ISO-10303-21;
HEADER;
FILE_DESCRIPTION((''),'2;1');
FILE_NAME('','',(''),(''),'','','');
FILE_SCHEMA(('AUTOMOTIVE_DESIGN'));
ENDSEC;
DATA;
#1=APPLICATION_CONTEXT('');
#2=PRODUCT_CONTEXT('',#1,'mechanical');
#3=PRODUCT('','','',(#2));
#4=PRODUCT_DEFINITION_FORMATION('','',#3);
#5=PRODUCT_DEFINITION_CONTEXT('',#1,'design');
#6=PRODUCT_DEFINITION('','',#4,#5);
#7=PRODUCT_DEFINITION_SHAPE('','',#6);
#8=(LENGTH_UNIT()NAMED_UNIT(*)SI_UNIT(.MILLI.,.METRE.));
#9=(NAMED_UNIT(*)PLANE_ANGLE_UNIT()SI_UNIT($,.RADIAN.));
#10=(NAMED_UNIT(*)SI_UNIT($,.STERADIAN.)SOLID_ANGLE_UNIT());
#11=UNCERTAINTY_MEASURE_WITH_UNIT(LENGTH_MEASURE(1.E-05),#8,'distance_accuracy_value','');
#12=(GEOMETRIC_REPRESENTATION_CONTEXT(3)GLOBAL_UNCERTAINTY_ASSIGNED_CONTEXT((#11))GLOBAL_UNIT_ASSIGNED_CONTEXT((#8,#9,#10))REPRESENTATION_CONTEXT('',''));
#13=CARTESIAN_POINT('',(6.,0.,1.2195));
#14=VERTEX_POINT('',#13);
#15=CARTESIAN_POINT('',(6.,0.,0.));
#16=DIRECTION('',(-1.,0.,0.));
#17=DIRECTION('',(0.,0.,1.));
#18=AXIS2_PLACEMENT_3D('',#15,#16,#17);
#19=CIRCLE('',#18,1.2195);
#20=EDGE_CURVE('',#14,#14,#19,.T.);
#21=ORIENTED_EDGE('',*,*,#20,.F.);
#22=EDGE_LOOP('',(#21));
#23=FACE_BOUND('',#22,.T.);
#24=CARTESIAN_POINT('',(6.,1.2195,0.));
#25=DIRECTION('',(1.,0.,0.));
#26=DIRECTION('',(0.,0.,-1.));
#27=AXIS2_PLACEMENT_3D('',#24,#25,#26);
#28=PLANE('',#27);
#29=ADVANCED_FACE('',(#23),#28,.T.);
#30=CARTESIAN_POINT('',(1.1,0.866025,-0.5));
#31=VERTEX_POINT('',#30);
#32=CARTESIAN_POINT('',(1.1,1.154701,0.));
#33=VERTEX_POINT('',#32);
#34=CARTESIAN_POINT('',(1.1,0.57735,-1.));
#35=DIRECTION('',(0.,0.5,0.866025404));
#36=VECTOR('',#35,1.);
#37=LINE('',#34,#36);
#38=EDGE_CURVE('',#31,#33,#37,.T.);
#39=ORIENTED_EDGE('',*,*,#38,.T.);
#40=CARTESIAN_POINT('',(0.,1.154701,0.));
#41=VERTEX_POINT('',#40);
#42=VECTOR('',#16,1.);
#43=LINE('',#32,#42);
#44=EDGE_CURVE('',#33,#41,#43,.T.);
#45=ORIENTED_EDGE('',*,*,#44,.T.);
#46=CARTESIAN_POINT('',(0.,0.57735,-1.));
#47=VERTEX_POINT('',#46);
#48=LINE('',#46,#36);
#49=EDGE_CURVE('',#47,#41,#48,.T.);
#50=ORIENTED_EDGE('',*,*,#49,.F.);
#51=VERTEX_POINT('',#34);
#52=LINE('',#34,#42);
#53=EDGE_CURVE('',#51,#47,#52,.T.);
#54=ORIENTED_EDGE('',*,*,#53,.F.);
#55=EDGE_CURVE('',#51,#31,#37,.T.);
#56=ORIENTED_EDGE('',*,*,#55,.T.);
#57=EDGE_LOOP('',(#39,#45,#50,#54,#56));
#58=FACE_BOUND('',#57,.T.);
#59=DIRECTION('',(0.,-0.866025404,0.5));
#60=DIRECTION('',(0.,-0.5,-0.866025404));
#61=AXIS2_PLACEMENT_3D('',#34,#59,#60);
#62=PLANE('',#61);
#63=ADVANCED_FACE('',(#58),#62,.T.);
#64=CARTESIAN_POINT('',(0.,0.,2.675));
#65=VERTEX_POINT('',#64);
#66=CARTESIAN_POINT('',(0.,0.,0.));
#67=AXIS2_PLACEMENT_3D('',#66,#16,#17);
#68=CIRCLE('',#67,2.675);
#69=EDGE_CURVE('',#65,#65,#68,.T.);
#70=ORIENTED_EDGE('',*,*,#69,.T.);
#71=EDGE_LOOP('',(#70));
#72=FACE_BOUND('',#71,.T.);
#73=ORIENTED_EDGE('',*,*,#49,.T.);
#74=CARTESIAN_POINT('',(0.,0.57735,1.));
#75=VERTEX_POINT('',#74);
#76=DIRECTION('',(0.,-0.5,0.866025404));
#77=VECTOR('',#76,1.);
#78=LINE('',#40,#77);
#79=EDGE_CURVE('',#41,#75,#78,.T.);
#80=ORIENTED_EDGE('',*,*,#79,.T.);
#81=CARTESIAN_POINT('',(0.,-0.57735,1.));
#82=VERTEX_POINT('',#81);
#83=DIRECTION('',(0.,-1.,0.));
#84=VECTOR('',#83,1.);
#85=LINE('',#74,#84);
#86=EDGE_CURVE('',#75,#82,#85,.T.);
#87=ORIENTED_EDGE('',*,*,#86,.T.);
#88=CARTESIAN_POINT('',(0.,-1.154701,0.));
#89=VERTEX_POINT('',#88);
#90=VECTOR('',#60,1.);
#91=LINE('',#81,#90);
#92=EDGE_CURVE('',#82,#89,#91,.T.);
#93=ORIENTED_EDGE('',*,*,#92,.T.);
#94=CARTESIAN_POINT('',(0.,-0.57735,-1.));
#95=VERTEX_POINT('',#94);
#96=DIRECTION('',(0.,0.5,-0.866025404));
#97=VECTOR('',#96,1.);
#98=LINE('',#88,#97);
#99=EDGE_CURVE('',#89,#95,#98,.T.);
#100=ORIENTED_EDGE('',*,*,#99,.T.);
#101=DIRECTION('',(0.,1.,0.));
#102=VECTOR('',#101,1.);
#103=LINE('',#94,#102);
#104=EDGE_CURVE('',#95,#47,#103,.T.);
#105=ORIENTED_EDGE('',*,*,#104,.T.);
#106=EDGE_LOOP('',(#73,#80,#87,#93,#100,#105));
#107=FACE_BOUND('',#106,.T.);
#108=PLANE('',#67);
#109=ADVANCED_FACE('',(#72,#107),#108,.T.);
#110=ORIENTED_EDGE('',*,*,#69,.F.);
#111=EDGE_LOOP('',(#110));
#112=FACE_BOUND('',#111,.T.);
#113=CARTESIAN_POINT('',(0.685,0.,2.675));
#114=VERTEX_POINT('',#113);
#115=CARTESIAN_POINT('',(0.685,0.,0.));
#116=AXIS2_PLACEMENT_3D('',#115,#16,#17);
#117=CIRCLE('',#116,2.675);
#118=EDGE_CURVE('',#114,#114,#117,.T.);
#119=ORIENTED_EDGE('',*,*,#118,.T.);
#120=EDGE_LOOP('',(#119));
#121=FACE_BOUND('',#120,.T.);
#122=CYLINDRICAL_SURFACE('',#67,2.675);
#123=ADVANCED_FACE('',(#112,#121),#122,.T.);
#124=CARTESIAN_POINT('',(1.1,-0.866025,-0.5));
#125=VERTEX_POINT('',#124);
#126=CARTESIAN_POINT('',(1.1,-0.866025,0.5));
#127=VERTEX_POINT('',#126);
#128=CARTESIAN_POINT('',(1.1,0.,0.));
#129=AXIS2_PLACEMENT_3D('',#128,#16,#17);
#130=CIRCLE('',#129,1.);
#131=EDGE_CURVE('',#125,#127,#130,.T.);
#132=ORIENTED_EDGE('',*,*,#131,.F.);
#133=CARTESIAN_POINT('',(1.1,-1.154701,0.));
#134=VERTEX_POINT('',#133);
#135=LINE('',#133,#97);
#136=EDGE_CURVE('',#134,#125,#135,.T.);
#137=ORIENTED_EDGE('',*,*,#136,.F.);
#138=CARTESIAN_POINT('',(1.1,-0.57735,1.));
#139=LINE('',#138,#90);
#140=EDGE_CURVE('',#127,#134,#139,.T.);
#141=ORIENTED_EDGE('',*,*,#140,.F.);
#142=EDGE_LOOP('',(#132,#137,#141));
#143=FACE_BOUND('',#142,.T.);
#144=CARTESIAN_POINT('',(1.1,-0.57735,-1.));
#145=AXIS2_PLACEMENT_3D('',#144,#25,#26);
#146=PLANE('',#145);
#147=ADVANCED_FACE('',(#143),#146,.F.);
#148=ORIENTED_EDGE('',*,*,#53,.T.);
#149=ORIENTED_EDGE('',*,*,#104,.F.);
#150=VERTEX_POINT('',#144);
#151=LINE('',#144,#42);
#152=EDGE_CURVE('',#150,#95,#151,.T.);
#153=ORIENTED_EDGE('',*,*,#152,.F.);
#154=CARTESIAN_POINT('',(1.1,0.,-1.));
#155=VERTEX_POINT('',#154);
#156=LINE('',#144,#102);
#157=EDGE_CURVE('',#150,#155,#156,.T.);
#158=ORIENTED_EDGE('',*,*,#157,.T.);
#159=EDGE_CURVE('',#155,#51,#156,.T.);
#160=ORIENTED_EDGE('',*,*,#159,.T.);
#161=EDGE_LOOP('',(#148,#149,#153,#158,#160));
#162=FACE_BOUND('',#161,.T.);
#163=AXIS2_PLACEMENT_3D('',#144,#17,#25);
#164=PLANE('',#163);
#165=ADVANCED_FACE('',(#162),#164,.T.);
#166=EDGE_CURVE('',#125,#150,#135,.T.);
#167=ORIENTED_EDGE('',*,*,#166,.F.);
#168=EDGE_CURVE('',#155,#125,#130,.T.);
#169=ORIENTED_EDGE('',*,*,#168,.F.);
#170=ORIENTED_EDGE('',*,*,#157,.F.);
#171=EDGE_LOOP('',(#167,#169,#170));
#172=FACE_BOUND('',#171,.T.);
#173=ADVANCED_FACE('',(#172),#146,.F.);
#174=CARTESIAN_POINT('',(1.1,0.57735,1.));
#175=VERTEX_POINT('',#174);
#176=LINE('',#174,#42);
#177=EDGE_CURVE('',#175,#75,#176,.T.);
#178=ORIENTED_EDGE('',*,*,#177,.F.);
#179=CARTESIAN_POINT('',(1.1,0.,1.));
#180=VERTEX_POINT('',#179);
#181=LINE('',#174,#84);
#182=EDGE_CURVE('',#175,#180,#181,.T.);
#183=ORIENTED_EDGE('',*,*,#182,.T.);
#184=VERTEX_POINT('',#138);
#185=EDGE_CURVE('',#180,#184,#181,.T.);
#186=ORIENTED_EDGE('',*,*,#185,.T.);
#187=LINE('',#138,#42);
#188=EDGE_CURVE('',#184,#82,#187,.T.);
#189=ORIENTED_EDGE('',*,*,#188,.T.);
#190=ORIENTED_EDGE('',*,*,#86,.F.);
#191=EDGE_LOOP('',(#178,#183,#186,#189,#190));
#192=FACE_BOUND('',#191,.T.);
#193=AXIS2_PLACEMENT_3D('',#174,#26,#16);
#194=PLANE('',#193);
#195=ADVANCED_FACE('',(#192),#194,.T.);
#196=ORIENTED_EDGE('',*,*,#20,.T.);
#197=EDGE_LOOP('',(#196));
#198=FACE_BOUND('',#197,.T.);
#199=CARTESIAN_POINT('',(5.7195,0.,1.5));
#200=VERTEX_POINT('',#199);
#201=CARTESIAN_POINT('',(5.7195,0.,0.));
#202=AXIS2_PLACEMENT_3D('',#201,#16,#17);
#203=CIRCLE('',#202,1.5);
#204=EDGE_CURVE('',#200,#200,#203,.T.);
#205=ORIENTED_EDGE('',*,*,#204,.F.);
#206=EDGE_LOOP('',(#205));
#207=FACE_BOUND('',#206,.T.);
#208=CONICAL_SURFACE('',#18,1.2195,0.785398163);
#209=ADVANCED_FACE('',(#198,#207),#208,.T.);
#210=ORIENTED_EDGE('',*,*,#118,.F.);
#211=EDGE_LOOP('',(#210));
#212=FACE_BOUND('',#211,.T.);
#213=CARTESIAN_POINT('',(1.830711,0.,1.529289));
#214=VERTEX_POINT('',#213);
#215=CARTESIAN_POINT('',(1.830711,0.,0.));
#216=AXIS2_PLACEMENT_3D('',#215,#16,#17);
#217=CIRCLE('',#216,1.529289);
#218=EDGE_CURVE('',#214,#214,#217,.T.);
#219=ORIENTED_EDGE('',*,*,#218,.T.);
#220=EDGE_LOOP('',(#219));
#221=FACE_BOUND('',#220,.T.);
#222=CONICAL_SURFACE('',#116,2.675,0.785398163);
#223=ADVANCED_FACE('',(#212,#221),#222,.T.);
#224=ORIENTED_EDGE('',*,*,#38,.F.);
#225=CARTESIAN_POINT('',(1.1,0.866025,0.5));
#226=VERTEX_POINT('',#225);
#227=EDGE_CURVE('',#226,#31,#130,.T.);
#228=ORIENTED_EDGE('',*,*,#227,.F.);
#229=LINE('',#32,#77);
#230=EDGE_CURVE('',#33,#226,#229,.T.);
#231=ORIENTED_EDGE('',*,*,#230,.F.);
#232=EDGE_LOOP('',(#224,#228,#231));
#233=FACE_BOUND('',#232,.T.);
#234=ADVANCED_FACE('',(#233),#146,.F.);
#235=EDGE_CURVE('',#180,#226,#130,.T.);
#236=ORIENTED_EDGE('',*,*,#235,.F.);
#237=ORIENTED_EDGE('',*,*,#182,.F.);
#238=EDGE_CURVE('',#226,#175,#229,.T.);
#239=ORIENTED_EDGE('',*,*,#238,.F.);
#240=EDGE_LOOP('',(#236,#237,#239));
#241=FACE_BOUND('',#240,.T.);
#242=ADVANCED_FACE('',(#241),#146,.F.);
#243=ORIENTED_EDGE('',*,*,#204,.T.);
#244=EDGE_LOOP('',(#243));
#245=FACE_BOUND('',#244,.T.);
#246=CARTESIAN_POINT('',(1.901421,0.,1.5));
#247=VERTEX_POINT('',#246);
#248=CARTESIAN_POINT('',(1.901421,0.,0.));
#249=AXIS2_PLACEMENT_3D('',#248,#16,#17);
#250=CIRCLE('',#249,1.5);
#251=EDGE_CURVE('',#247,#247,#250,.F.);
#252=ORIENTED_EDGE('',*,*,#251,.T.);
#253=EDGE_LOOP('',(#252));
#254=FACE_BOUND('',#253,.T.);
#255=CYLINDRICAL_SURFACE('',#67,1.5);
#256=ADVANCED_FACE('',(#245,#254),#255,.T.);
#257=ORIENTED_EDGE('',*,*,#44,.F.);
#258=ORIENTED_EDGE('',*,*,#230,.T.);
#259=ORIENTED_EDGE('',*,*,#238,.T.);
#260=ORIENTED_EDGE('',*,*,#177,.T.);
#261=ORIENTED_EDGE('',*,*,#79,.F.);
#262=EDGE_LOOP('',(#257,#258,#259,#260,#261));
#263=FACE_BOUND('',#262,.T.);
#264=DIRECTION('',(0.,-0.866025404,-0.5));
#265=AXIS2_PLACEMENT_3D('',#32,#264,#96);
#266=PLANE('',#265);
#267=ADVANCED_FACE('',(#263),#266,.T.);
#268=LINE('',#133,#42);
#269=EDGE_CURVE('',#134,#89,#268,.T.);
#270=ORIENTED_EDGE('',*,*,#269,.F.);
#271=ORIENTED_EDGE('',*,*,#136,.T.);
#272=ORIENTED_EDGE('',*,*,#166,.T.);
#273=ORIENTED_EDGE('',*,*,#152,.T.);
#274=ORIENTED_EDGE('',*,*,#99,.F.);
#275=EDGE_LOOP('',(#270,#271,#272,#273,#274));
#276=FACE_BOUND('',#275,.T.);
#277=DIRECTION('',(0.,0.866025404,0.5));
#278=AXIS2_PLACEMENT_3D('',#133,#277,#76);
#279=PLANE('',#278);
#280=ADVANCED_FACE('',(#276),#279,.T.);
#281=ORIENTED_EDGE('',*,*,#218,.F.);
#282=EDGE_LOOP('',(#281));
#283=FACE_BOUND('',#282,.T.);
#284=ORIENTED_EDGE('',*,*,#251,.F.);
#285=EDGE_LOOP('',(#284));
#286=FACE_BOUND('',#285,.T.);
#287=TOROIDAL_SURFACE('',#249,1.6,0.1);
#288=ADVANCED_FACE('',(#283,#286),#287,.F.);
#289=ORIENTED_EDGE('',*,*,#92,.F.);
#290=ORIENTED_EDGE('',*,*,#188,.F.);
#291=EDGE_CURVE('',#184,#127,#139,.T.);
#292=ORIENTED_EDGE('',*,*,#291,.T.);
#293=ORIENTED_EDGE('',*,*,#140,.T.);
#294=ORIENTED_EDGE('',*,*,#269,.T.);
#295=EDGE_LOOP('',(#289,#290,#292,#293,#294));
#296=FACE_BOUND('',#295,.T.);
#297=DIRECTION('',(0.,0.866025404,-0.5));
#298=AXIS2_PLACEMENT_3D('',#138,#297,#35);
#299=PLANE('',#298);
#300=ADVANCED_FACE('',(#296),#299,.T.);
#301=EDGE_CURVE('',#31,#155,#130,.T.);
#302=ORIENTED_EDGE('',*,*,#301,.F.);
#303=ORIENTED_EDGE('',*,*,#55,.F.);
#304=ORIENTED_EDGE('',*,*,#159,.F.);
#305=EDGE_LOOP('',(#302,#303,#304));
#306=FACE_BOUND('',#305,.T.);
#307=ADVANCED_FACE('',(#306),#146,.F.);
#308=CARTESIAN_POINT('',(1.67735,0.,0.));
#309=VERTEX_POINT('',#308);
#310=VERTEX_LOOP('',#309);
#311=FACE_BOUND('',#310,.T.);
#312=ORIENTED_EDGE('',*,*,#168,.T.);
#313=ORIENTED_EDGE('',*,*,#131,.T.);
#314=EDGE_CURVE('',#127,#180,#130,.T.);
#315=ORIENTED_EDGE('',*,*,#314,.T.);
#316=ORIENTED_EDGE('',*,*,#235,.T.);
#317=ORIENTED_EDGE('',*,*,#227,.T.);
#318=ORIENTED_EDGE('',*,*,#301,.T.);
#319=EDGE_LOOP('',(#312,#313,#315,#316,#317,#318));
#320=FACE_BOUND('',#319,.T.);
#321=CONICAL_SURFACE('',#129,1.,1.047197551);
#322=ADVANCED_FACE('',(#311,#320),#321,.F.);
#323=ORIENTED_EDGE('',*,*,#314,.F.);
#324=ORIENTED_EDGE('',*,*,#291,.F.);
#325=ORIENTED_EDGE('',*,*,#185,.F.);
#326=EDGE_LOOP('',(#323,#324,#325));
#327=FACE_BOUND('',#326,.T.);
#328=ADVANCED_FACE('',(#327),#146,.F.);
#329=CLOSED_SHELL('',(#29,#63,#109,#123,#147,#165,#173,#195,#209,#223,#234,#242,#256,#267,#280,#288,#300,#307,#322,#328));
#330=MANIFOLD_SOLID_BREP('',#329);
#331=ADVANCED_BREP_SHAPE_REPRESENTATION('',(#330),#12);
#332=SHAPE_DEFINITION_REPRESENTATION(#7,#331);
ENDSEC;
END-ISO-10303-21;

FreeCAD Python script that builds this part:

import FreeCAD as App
import Part
import Sketcher
Q = App.Units.Quantity


def edges_at(feature, points):
    """Names of the edges that pass closest to the given points."""
    edges = feature.Shape.Edges
    near = lambda p: min(range(len(edges)), key=lambda i: edges[i].distToShape(Part.Vertex(*p))[0])
    return sorted({f"Edge{near(p) + 1}" for p in points})


def add_polygon(sketch, points):
    """Adds a closed chain of lines whose ends are joined by coincident constraints."""
    first, n = sketch.GeometryCount, len(points)
    for a, b in zip(points, points[1:] + points[:1]):
        sketch.addGeometry(Part.LineSegment(App.Vector(*a, 0), App.Vector(*b, 0)), False)
    for i in range(n):
        sketch.addConstraint(Sketcher.Constraint("Coincident", first + i, 2, first + (i + 1) % n, 1))

doc = App.newDocument("Part")
body = doc.addObject("PartDesign::Body", "Body")

# Sketch on XY plane
sketch1 = doc.addObject("Sketcher::SketchObject", "Sketch")
body.addObject(sketch1)
sketch1.AttachmentSupport = (doc.XY_Plane, [""])
sketch1.MapMode = "FlatFace"
add_polygon(sketch1, [(0, 2.67), (0, 0), (6, 0), (6, 1.22), (5.72, 1.5), (1.86, 1.5), (0.69, 2.67)])  # lines 0-6
sketch1.addConstraint([
    Sketcher.Constraint("Vertical", 0),
    Sketcher.Constraint("Horizontal", 1),
    Sketcher.Constraint("Vertical", 2),
    Sketcher.Constraint("Horizontal", 4),
    Sketcher.Constraint("Horizontal", 6),
    Sketcher.Constraint("Coincident", 0, 2, -1, 1),
    Sketcher.Constraint("Parallel", 3, 5),
    Sketcher.Constraint("DistanceX", 1, 1, 1, 2, Q("6 mm")),
    Sketcher.Constraint("Angle", 3, Q("135 deg")),
    Sketcher.Constraint("DistanceY", -1, 1, 3, 2, Q("1.5 mm")),
    Sketcher.Constraint("DistanceX", 6, 2, 6, 1, Q("0.685 mm")),
    Sketcher.Constraint("DistanceY", 0, 2, 0, 1, Q("2.675 mm")),
    Sketcher.Constraint("DistanceX", 4, 2, 4, 1, Q("3.8595 mm")),
])
revolution = doc.addObject("PartDesign::Revolution", "Revolution")
body.addObject(revolution)
revolution.Profile = sketch1
revolution.ReferenceAxis = (sketch1, ["H_Axis"])
revolution.Angle = 360
doc.recompute()

fillet = doc.addObject("PartDesign::Fillet", "Fillet")
body.addObject(fillet)
fillet.Base = (revolution, edges_at(revolution, [(1.86, -1.5, 0)]))
fillet.Radius = 0.1

# Sketch on XY plane
sketch2 = doc.addObject("Sketcher::SketchObject", "Sketch001")
body.addObject(sketch2)
sketch2.AttachmentSupport = (doc.XY_Plane, [""])
sketch2.MapMode = "FlatFace"
add_polygon(sketch2, [(1.1, 1), (0, 1), (0, 0), (1.7, 0)])  # lines 0-3
sketch2.addConstraint([
    Sketcher.Constraint("Horizontal", 0),
    Sketcher.Constraint("Vertical", 1),
    Sketcher.Constraint("Horizontal", 2),
    Sketcher.Constraint("Coincident", 1, 2, -1, 1),
    Sketcher.Constraint("DistanceY", 1, 2, 1, 1, Q("1 mm")),
    Sketcher.Constraint("Angle", 3, Q("120 deg")),
    Sketcher.Constraint("DistanceX", 0, 2, 0, 1, Q("1.1 mm")),
])
groove = doc.addObject("PartDesign::Groove", "Groove")
body.addObject(groove)
groove.Profile = sketch2
groove.ReferenceAxis = (sketch2, ["H_Axis"])
groove.Angle = 360

# Sketch on YZ plane
sketch3 = doc.addObject("Sketcher::SketchObject", "Sketch002")
body.addObject(sketch3)
sketch3.AttachmentSupport = (doc.YZ_Plane, [""])
sketch3.MapMode = "FlatFace"
add_polygon(sketch3, [(0.6, -1), (-0.6, -1), (-1.2, 0), (-0.6, 1), (0.6, 1), (1.2, 0)])  # lines 0-5
sketch3.addConstraint([
    Sketcher.Constraint("Horizontal", 0),
    Sketcher.Constraint("Horizontal", 3),
    Sketcher.Constraint("Symmetric", 0, 2, 3, 2, -1, 1),
    Sketcher.Constraint("Symmetric", 1, 2, 4, 2, -1, 1),
    Sketcher.Constraint("PointOnObject", 1, 2, -1),
    Sketcher.Constraint("Parallel", 2, 5),
    Sketcher.Constraint("Vertical", 0, 2, 2, 2),
    Sketcher.Constraint("Angle", 1, Q("120 deg")),
    Sketcher.Constraint("DistanceY", 0, 2, -1, 1, Q("1 mm")),
    Sketcher.Constraint("DistanceX", 0, 2, 0, 1, Q("1.154701 mm")),
])
pocket1 = doc.addObject("PartDesign::Pocket", "Pocket")
body.addObject(pocket1)
pocket1.Profile = sketch3
pocket1.Length = 1.1
pocket1.Reversed = True

doc.recompute()
